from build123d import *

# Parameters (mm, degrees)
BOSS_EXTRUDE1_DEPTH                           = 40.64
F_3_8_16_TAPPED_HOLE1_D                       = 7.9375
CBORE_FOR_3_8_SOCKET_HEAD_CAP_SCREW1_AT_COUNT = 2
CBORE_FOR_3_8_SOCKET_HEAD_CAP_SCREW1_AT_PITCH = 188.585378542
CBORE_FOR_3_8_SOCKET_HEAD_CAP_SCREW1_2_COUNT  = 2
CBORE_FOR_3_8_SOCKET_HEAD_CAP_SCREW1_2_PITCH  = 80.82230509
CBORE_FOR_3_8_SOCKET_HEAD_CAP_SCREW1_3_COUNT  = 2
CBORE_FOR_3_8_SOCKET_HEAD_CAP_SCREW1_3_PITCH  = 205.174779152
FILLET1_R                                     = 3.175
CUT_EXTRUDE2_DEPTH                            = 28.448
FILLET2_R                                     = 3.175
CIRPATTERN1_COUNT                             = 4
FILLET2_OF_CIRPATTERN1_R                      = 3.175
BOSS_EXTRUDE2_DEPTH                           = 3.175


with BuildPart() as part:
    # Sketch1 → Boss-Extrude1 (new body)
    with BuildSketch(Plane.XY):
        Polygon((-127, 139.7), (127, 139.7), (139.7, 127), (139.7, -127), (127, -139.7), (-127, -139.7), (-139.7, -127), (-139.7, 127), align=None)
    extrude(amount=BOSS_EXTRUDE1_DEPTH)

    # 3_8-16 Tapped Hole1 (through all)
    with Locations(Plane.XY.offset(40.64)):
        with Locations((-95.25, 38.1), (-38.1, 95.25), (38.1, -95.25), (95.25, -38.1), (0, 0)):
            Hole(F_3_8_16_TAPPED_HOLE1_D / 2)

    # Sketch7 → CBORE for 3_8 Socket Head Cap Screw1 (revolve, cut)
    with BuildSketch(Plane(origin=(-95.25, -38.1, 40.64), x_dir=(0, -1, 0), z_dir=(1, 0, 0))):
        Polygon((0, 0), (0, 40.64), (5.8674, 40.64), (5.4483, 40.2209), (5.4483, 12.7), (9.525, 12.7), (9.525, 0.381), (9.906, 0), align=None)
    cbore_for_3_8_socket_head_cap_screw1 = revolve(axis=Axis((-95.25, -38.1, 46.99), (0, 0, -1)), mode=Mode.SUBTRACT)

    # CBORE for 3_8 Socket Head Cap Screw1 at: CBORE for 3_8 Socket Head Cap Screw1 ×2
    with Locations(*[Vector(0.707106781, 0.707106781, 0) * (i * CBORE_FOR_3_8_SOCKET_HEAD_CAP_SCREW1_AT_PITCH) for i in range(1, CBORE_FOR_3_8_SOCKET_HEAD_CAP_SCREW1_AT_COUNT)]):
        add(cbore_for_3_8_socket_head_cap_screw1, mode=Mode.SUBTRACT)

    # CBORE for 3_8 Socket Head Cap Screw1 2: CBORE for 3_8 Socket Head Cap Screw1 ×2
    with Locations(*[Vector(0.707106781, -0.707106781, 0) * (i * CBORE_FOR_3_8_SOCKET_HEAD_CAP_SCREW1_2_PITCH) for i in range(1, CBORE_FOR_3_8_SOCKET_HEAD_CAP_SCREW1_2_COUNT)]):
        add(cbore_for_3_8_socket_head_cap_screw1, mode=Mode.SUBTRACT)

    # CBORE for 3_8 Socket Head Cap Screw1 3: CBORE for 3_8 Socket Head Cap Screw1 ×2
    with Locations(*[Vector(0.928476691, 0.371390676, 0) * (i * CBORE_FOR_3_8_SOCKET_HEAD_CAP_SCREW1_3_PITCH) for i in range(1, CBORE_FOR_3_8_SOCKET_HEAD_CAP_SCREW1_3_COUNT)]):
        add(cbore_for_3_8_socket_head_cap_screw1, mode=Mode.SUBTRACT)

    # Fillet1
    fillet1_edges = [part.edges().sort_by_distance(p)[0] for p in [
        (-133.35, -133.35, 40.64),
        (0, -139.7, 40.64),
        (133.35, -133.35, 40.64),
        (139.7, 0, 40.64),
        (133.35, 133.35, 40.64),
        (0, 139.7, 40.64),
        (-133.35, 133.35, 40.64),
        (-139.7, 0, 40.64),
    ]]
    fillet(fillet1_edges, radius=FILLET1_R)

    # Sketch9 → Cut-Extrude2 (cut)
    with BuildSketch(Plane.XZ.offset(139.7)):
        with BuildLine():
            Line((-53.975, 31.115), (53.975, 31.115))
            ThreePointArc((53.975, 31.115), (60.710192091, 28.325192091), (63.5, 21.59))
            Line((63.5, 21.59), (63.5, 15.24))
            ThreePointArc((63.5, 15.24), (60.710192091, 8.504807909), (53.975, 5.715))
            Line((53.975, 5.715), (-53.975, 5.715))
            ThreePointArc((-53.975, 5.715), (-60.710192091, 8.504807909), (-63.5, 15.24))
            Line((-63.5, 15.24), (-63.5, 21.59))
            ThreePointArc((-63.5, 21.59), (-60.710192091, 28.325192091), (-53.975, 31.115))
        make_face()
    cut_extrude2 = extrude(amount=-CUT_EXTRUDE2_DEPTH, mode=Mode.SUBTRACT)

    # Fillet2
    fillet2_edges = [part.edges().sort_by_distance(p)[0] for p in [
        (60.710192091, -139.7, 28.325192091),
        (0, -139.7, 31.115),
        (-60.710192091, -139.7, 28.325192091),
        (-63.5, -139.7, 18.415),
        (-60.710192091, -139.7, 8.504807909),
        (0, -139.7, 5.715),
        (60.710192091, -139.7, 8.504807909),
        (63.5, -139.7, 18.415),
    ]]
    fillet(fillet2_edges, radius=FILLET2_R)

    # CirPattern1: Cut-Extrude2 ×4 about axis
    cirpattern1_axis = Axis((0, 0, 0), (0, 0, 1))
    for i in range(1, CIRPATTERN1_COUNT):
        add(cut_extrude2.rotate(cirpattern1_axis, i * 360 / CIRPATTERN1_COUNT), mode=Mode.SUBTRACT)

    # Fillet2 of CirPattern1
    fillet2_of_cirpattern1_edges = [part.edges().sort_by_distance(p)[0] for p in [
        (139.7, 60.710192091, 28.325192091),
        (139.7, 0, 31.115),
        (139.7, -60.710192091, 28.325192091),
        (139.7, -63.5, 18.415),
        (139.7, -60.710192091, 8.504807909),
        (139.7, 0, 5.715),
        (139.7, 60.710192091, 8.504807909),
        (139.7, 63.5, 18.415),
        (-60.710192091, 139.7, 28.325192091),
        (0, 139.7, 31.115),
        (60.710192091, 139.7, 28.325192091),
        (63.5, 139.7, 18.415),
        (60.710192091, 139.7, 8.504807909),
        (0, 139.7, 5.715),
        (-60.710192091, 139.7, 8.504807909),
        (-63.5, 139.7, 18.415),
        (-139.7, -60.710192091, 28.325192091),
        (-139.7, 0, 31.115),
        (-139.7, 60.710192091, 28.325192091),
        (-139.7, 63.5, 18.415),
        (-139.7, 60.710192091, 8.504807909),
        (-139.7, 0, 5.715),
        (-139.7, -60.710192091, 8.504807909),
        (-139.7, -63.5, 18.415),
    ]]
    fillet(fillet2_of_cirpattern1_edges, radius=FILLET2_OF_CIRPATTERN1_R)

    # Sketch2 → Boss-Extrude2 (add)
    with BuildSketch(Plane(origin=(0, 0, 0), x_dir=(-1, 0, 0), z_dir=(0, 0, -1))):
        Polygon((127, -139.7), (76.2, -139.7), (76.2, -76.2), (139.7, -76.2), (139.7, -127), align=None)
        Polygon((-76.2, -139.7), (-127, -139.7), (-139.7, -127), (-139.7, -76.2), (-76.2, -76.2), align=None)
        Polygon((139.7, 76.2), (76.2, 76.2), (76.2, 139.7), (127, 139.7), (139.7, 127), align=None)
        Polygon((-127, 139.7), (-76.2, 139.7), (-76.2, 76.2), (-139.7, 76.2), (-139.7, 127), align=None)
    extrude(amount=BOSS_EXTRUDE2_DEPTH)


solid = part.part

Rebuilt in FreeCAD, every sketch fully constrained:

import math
import FreeCAD as App
import Part
import Sketcher
from FreeCAD import Vector
Q = App.Units.Quantity


def edges_at(feature, points):
    """Names of the edges that pass closest to the given points."""
    edges = feature.Shape.Edges
    near = lambda p: min(range(len(edges)), key=lambda i: edges[i].distToShape(Part.Vertex(*p))[0])
    return sorted({f"Edge{near(p) + 1}" for p in points})

doc = App.newDocument("Part")
body = doc.addObject("PartDesign::Body", "Body")

sketch1 = body.newObject("Sketcher::SketchObject", "Sketch")
sketch1.AttachmentSupport = (doc.getObject("XY_Plane"), [""])
sketch1.MapMode = "FlatFace"
sketch1.addGeometry([
    Part.LineSegment(Vector(127, 139.7, 0), Vector(-127, 139.7, 0)),
    Part.LineSegment(Vector(-127, 139.7, 0), Vector(-139.7, 127, 0)),
    Part.LineSegment(Vector(-139.7, 127, 0), Vector(-139.7, -127, 0)),
    Part.LineSegment(Vector(-139.7, -127, 0), Vector(-127, -139.7, 0)),
    Part.LineSegment(Vector(-127, -139.7, 0), Vector(127, -139.7, 0)),
    Part.LineSegment(Vector(127, -139.7, 0), Vector(139.7, -127, 0)),
    Part.LineSegment(Vector(139.7, -127, 0), Vector(139.7, 127, 0)),
    Part.LineSegment(Vector(139.7, 127, 0), Vector(127, 139.7, 0)),
], False)
sketch1.addConstraint([
    Sketcher.Constraint("Coincident", 0, 2, 1, 1),
    Sketcher.Constraint("Coincident", 1, 2, 2, 1),
    Sketcher.Constraint("Coincident", 2, 2, 3, 1),
    Sketcher.Constraint("Coincident", 3, 2, 4, 1),
    Sketcher.Constraint("Coincident", 4, 2, 5, 1),
    Sketcher.Constraint("Coincident", 5, 2, 6, 1),
    Sketcher.Constraint("Coincident", 6, 2, 7, 1),
    Sketcher.Constraint("Coincident", 7, 2, 0, 1),
    Sketcher.Constraint("Horizontal", 0),
    Sketcher.Constraint("Vertical", 2),
    Sketcher.Constraint("Horizontal", 4),
    Sketcher.Constraint("Vertical", 6),
    Sketcher.Constraint("Symmetric", 0, 2, 4, 2, -1, 1),
    Sketcher.Constraint("Symmetric", 1, 2, 5, 2, -1, 1),
    Sketcher.Constraint("Perpendicular", 1, 3),
    Sketcher.Constraint("Perpendicular", 5, 7),
    Sketcher.Constraint("Horizontal", 2, 2, 5, 2),
    Sketcher.Constraint("Horizontal", 1, 2, 6, 2),
    Sketcher.Constraint("Vertical", 0, 2, 3, 2),
    Sketcher.Constraint("Equal", 4, 2),
    Sketcher.Constraint("DistanceX", 0, 2, 0, 1, Q("10 in")),
    Sketcher.Constraint("DistanceY", 3, 2, 0, 2, Q("11 in")),
])
pad1 = body.newObject("PartDesign::Pad", "Pad")
pad1.Profile = sketch1
pad1.Length = Q("1.6 in")

sketch2 = body.newObject("Sketcher::SketchObject", "Sketch001")
sketch2.AttachmentSupport = (doc.getObject("XY_Plane"), [""])
sketch2.MapMode = "FlatFace"
sketch2.AttachmentOffset = App.Placement(Vector(0, 0, 1.6 * 25.4), App.Rotation())
sketch2.addGeometry([
    Part.Circle(Vector(-95.25, 38.1, 0), Vector(0, 0, 1), 3.96875),
    Part.Circle(Vector(-38.1, 95.25, 0), Vector(0, 0, 1), 3.96875),
    Part.Circle(Vector(38.1, -95.25, 0), Vector(0, 0, 1), 3.96875),
    Part.Circle(Vector(95.25, -38.1, 0), Vector(0, 0, 1), 3.96875),
    Part.Circle(Vector(0, 0, 0), Vector(0, 0, 1), 3.96875),
], False)
sketch2.addConstraint([
    Sketcher.Constraint("Coincident", 4, 3, -1, 1),
    Sketcher.Constraint("Equal", 0, 1),
    Sketcher.Constraint("Equal", 1, 2),
    Sketcher.Constraint("Equal", 2, 3),
    Sketcher.Constraint("Equal", 3, 4),
    Sketcher.Constraint("Symmetric", 1, 3, 2, 3, -1, 1),
    Sketcher.Constraint("Symmetric", 0, 3, 3, 3, -1, 1),
    Sketcher.Constraint("Diameter", 0, Q("0.3125 in")),
    Sketcher.Constraint("DistanceX", 1, 3, 2, 3, Q("3 in")),
    Sketcher.Constraint("DistanceY", 3, 3, 0, 3, Q("3 in")),
    Sketcher.Constraint("DistanceY", 2, 3, 1, 3, Q("7.5 in")),
    Sketcher.Constraint("DistanceX", 0, 3, 3, 3, Q("7.5 in")),
])
doc.recompute()
hole = body.newObject("PartDesign::Hole", "Hole")
hole.Profile = sketch2
hole.ThreadType = "None"
hole.Diameter = Q("0.3125 in")
hole.DepthType = "ThroughAll"

sketch3 = body.newObject("Sketcher::SketchObject", "Sketch002")
sketch3.AttachmentSupport = (doc.getObject("YZ_Plane"), [""])
sketch3.MapMode = "FlatFace"
sketch3.AttachmentOffset = App.Placement(Vector(0, 0, -3.75 * 25.4), App.Rotation())
sketch3.addGeometry([
    Part.LineSegment(Vector(-38.1, 0, 0), Vector(-38.1, 40.64, 0)),
    Part.LineSegment(Vector(-38.1, 40.64, 0), Vector(-48.006, 40.64, 0)),
    Part.LineSegment(Vector(-48.006, 40.64, 0), Vector(-47.625, 40.259, 0)),
    Part.LineSegment(Vector(-47.625, 40.259, 0), Vector(-47.625, 27.94, 0)),
    Part.LineSegment(Vector(-47.625, 27.94, 0), Vector(-43.5483, 27.94, 0)),
    Part.LineSegment(Vector(-43.5483, 27.94, 0), Vector(-43.5483, 0.4191, 0)),
    Part.LineSegment(Vector(-43.5483, 0.4191, 0), Vector(-43.9674, 0, 0)),
    Part.LineSegment(Vector(-43.9674, 0, 0), Vector(-38.1, 0, 0)),
], False)
sketch3.addGeometry(Part.LineSegment(Vector(-38.1, 40.64, 0), Vector(-38.1, 0, 0)), True)
sketch3.addConstraint([
    Sketcher.Constraint("Coincident", 0, 2, 1, 1),
    Sketcher.Constraint("Coincident", 1, 2, 2, 1),
    Sketcher.Constraint("Coincident", 2, 2, 3, 1),
    Sketcher.Constraint("Coincident", 3, 2, 4, 1),
    Sketcher.Constraint("Coincident", 4, 2, 5, 1),
    Sketcher.Constraint("Coincident", 5, 2, 6, 1),
    Sketcher.Constraint("Coincident", 6, 2, 7, 1),
    Sketcher.Constraint("Coincident", 7, 2, 0, 1),
    Sketcher.Constraint("Vertical", 0),
    Sketcher.Constraint("Horizontal", 1),
    Sketcher.Constraint("Vertical", 3),
    Sketcher.Constraint("Horizontal", 4),
    Sketcher.Constraint("Vertical", 5),
    Sketcher.Constraint("Horizontal", 7),
    Sketcher.Constraint("Vertical", 8),
    Sketcher.Constraint("Coincident", 8, 1, 0, 2),
    Sketcher.Constraint("PointOnObject", 6, 2, -1),
    Sketcher.Constraint("PointOnObject", 8, 2, -1),
    Sketcher.Constraint("Perpendicular", 2, 6),
    Sketcher.Constraint("DistanceY", 0, 1, 0, 2, Q("1.6 in")),
    Sketcher.Constraint("Angle", 2, Q("-45 deg")),
    Sketcher.Constraint("DistanceX", 1, 2, 1, 1, Q("0.39 in")),
    Sketcher.Constraint("DistanceX", 0, 2, -1, 1, Q("1.5 in")),
    Sketcher.Constraint("DistanceY", -1, 1, 3, 2, Q("1.1 in")),
    Sketcher.Constraint("DistanceX", 7, 1, 7, 2, Q("0.231 in")),
    Sketcher.Constraint("DistanceY", 3, 2, 3, 1, Q("0.485 in")),
    Sketcher.Constraint("DistanceX", 4, 1, 4, 2, Q("0.1605 in")),
])
groove = body.newObject("PartDesign::Groove", "Groove")
groove.Profile = sketch3
groove.ReferenceAxis = (sketch3, ["Axis0"])
groove.Angle = 360
doc.recompute()

datumline = body.newObject("PartDesign::Line", "DatumLine")
datumline.Placement = App.Placement(Vector(0, 0, 0), App.Rotation(Vector(0, 0, 1), Vector(0.707106781, 0.707106781, 0)))
linearpattern = body.newObject("PartDesign::LinearPattern", "LinearPattern")
linearpattern.Originals = [groove]
linearpattern.Direction = (datumline, [""])
linearpattern.Mode = "offset"
linearpattern.Offset = 188.585378
linearpattern.Occurrences = 2
body.Tip = linearpattern
doc.recompute()

datumline2 = body.newObject("PartDesign::Line", "DatumLine001")
datumline2.Placement = App.Placement(Vector(0, 0, 0), App.Rotation(Vector(0, 0, 1), Vector(0.707106781, -0.707106781, 0)))
linearpattern2 = body.newObject("PartDesign::LinearPattern", "LinearPattern001")
linearpattern2.Originals = [groove]
linearpattern2.Direction = (datumline2, [""])
linearpattern2.Mode = "offset"
linearpattern2.Offset = 80.822305
linearpattern2.Occurrences = 2
body.Tip = linearpattern2
doc.recompute()

datumline3 = body.newObject("PartDesign::Line", "DatumLine002")
datumline3.Placement = App.Placement(Vector(0, 0, 0), App.Rotation(Vector(0, 0, 1), Vector(0.928476691, 0.371390676, 0)))
linearpattern3 = body.newObject("PartDesign::LinearPattern", "LinearPattern002")
linearpattern3.Originals = [groove]
linearpattern3.Direction = (datumline3, [""])
linearpattern3.Mode = "offset"
linearpattern3.Offset = 205.174779
linearpattern3.Occurrences = 2
body.Tip = linearpattern3
doc.recompute()

fillet = body.newObject("PartDesign::Fillet", "Fillet")
fillet.Base = (linearpattern3, edges_at(linearpattern3, [
    (-133.35, -133.35, 40.64),
    (0, -139.7, 40.64),
    (133.35, -133.35, 40.64),
    (139.7, 0, 40.64),
    (133.35, 133.35, 40.64),
    (0, 139.7, 40.64),
    (-133.35, 133.35, 40.64),
    (-139.7, 0, 40.64),
]))
fillet.Radius = Q("0.125 in")

sketch4 = body.newObject("Sketcher::SketchObject", "Sketch003")
sketch4.AttachmentSupport = (doc.getObject("XZ_Plane"), [""])
sketch4.MapMode = "FlatFace"
sketch4.AttachmentOffset = App.Placement(Vector(0, 0, 5.5 * 25.4), App.Rotation())
sketch4.addGeometry([
    Part.LineSegment(Vector(53.975, 31.115, 0), Vector(-53.975, 31.115, 0)),
    Part.ArcOfCircle(Part.Circle(Vector(-53.975, 21.59, 0), Vector(0, 0, 1), 9.525), math.radians(90), math.radians(180)),
    Part.LineSegment(Vector(-63.5, 21.59, 0), Vector(-63.5, 15.24, 0)),
    Part.ArcOfCircle(Part.Circle(Vector(-53.975, 15.24, 0), Vector(0, 0, 1), 9.525), math.radians(180), math.radians(270)),
    Part.LineSegment(Vector(-53.975, 5.715, 0), Vector(53.975, 5.715, 0)),
    Part.ArcOfCircle(Part.Circle(Vector(53.975, 15.24, 0), Vector(0, 0, 1), 9.525), math.radians(-90), math.radians(0)),
    Part.LineSegment(Vector(63.5, 15.24, 0), Vector(63.5, 21.59, 0)),
    Part.ArcOfCircle(Part.Circle(Vector(53.975, 21.59, 0), Vector(0, 0, 1), 9.525), math.radians(0), math.radians(90)),
], False)
sketch4.addConstraint([
    Sketcher.Constraint("Tangent", 0, 2, 1, 1),
    Sketcher.Constraint("Tangent", 1, 2, 2, 1),
    Sketcher.Constraint("Tangent", 2, 2, 3, 1),
    Sketcher.Constraint("Tangent", 3, 2, 4, 1),
    Sketcher.Constraint("Tangent", 4, 2, 5, 1),
    Sketcher.Constraint("Tangent", 5, 2, 6, 1),
    Sketcher.Constraint("Tangent", 6, 2, 7, 1),
    Sketcher.Constraint("Tangent", 7, 2, 0, 1),
    Sketcher.Constraint("Horizontal", 0),
    Sketcher.Constraint("Vertical", 2),
    Sketcher.Constraint("Horizontal", 4),
    Sketcher.Constraint("Vertical", 6),
    Sketcher.Constraint("Equal", 1, 3),
    Sketcher.Constraint("Equal", 3, 5),
    Sketcher.Constraint("Equal", 5, 7),
    Sketcher.Constraint("Radius", 1, Q("0.375 in")),
    Sketcher.Constraint("DistanceY", 3, 2, 0, 2, Q("1 in")),
    Sketcher.Constraint("DistanceX", 0, 2, 0, 1, Q("4.25 in")),
    Sketcher.Constraint("DistanceY", -1, 1, 3, 3, Q("0.6 in")),
    Sketcher.Constraint("DistanceX", 1, 2, -1, 1, Q("2.5 in")),
])
pocket1 = body.newObject("PartDesign::Pocket", "Pocket")
pocket1.Profile = sketch4
pocket1.Length = Q("1.12 in")
doc.recompute()

fillet2 = body.newObject("PartDesign::Fillet", "Fillet001")
fillet2.Base = (pocket1, edges_at(pocket1, [
    (60.71, -139.7, 28.325),
    (0, -139.7, 31.115),
    (-60.71, -139.7, 28.325),
    (-63.5, -139.7, 18.415),
    (-60.71, -139.7, 8.505),
    (0, -139.7, 5.715),
    (60.71, -139.7, 8.505),
    (63.5, -139.7, 18.415),
]))
fillet2.Radius = Q("0.125 in")
doc.recompute()

polarpattern = body.newObject("PartDesign::PolarPattern", "PolarPattern")
polarpattern.Originals = [pocket1]
polarpattern.Axis = (doc.getObject("Z_Axis"), [""])
polarpattern.Angle = 360
polarpattern.Occurrences = 4
body.Tip = polarpattern
doc.recompute()

fillet3 = body.newObject("PartDesign::Fillet", "Fillet002")
fillet3.Base = (polarpattern, edges_at(polarpattern, [
    (139.7, 60.71, 28.325),
    (139.7, 0, 31.115),
    (139.7, -60.71, 28.325),
    (139.7, -63.5, 18.415),
    (139.7, -60.71, 8.505),
    (139.7, 0, 5.715),
    (139.7, 60.71, 8.505),
    (139.7, 63.5, 18.415),
    (-60.71, 139.7, 28.325),
    (0, 139.7, 31.115),
    (60.71, 139.7, 28.325),
    (63.5, 139.7, 18.415),
    (60.71, 139.7, 8.505),
    (0, 139.7, 5.715),
    (-60.71, 139.7, 8.505),
    (-63.5, 139.7, 18.415),
    (-139.7, -60.71, 28.325),
    (-139.7, 0, 31.115),
    (-139.7, 60.71, 28.325),
    (-139.7, 63.5, 18.415),
    (-139.7, 60.71, 8.505),
    (-139.7, 0, 5.715),
    (-139.7, -60.71, 8.505),
    (-139.7, -63.5, 18.415),
]))
fillet3.Radius = Q("0.125 in")

sketch5 = body.newObject("Sketcher::SketchObject", "Sketch004")
sketch5.AttachmentSupport = (doc.getObject("XY_Plane"), [""])
sketch5.MapMode = "FlatFace"
sketch5.addGeometry([
    Part.LineSegment(Vector(-76.2, -139.7, 0), Vector(-127, -139.7, 0)),
    Part.LineSegment(Vector(-127, -139.7, 0), Vector(-139.7, -127, 0)),
    Part.LineSegment(Vector(-139.7, -127, 0), Vector(-139.7, -76.2, 0)),
    Part.LineSegment(Vector(-139.7, -76.2, 0), Vector(-76.2, -76.2, 0)),
    Part.LineSegment(Vector(-76.2, -76.2, 0), Vector(-76.2, -139.7, 0)),
    Part.LineSegment(Vector(127, -139.7, 0), Vector(76.2, -139.7, 0)),
    Part.LineSegment(Vector(76.2, -139.7, 0), Vector(76.2, -76.2, 0)),
    Part.LineSegment(Vector(76.2, -76.2, 0), Vector(139.7, -76.2, 0)),
    Part.LineSegment(Vector(139.7, -76.2, 0), Vector(139.7, -127, 0)),
    Part.LineSegment(Vector(139.7, -127, 0), Vector(127, -139.7, 0)),
    Part.LineSegment(Vector(-76.2, 76.2, 0), Vector(-139.7, 76.2, 0)),
    Part.LineSegment(Vector(-139.7, 76.2, 0), Vector(-139.7, 127, 0)),
    Part.LineSegment(Vector(-139.7, 127, 0), Vector(-127, 139.7, 0)),
    Part.LineSegment(Vector(-127, 139.7, 0), Vector(-76.2, 139.7, 0)),
    Part.LineSegment(Vector(-76.2, 139.7, 0), Vector(-76.2, 76.2, 0)),
    Part.LineSegment(Vector(76.2, 139.7, 0), Vector(127, 139.7, 0)),
    Part.LineSegment(Vector(127, 139.7, 0), Vector(139.7, 127, 0)),
    Part.LineSegment(Vector(139.7, 127, 0), Vector(139.7, 76.2, 0)),
    Part.LineSegment(Vector(139.7, 76.2, 0), Vector(76.2, 76.2, 0)),
    Part.LineSegment(Vector(76.2, 76.2, 0), Vector(76.2, 139.7, 0)),
], False)
sketch5.addConstraint([
    Sketcher.Constraint("Coincident", 0, 2, 1, 1),
    Sketcher.Constraint("Coincident", 1, 2, 2, 1),
    Sketcher.Constraint("Coincident", 2, 2, 3, 1),
    Sketcher.Constraint("Coincident", 3, 2, 4, 1),
    Sketcher.Constraint("Coincident", 4, 2, 0, 1),
    Sketcher.Constraint("Coincident", 5, 2, 6, 1),
    Sketcher.Constraint("Coincident", 6, 2, 7, 1),
    Sketcher.Constraint("Coincident", 7, 2, 8, 1),
    Sketcher.Constraint("Coincident", 8, 2, 9, 1),
    Sketcher.Constraint("Coincident", 9, 2, 5, 1),
    Sketcher.Constraint("Coincident", 10, 2, 11, 1),
    Sketcher.Constraint("Coincident", 11, 2, 12, 1),
    Sketcher.Constraint("Coincident", 12, 2, 13, 1),
    Sketcher.Constraint("Coincident", 13, 2, 14, 1),
    Sketcher.Constraint("Coincident", 14, 2, 10, 1),
    Sketcher.Constraint("Coincident", 15, 2, 16, 1),
    Sketcher.Constraint("Coincident", 16, 2, 17, 1),
    Sketcher.Constraint("Coincident", 17, 2, 18, 1),
    Sketcher.Constraint("Coincident", 18, 2, 19, 1),
    Sketcher.Constraint("Coincident", 19, 2, 15, 1),
    Sketcher.Constraint("Horizontal", 0),
    Sketcher.Constraint("Vertical", 2),
    Sketcher.Constraint("Horizontal", 3),
    Sketcher.Constraint("Vertical", 4),
    Sketcher.Constraint("Horizontal", 5),
    Sketcher.Constraint("Vertical", 6),
    Sketcher.Constraint("Horizontal", 7),
    Sketcher.Constraint("Vertical", 8),
    Sketcher.Constraint("Horizontal", 10),
    Sketcher.Constraint("Vertical", 11),
    Sketcher.Constraint("Horizontal", 13),
    Sketcher.Constraint("Vertical", 14),
    Sketcher.Constraint("Horizontal", 15),
    Sketcher.Constraint("Vertical", 17),
    Sketcher.Constraint("Horizontal", 18),
    Sketcher.Constraint("Vertical", 19),
    Sketcher.Constraint("Symmetric", 7, 2, 10, 2, -1, 1),
    Sketcher.Constraint("Symmetric", 9, 2, 12, 2, -1, 1),
    Sketcher.Constraint("Symmetric", 0, 2, 15, 2, -1, 1),
    Sketcher.Constraint("Symmetric", 1, 2, 16, 2, -1, 1),
    Sketcher.Constraint("Symmetric", 3, 2, 18, 2, -1, 1),
    Sketcher.Constraint("Symmetric", 4, 2, 5, 2, -2),
    Sketcher.Constraint("Symmetric", 2, 2, 7, 2, -2),
    Sketcher.Constraint("Perpendicular", 1, 9),
    Sketcher.Constraint("Parallel", 9, 12),
    Sketcher.Constraint("Horizontal", 1, 2, 8, 2),
    Sketcher.Constraint("Vertical", 0, 2, 12, 2),
    Sketcher.Constraint("Vertical", 4, 2, 13, 2),
    Sketcher.Constraint("Equal", 15, 2),
    Sketcher.Constraint("DistanceX", 0, 2, 0, 1, Q("2 in")),
    Sketcher.Constraint("DistanceX", 3, 1, 3, 2, Q("2.5 in")),
    Sketcher.Constraint("DistanceX", 0, 2, -1, 1, Q("5 in")),
    Sketcher.Constraint("DistanceY", 1, 2, -1, 1, Q("5 in")),
])
pad2 = body.newObject("PartDesign::Pad", "Pad001")
pad2.Profile = sketch5
pad2.Length = Q("0.125 in")
pad2.Reversed = True

doc.recompute()
